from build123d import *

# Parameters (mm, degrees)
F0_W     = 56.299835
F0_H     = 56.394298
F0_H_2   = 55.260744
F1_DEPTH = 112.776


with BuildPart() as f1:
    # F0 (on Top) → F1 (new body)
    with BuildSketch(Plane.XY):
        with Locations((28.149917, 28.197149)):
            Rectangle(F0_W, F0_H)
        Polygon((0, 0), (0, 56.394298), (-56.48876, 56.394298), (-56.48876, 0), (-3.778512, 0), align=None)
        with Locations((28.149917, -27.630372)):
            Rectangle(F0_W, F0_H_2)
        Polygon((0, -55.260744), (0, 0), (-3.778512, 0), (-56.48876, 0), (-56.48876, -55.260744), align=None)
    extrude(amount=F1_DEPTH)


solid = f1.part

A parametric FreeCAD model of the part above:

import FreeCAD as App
import Part
import Sketcher
Q = App.Units.Quantity

doc = App.newDocument("Part")
body = doc.addObject("PartDesign::Body", "Body")

sketch1 = body.newObject("Sketcher::SketchObject", "Sketch")
sketch1.AttachmentSupport = (doc.getObject("XY_Plane"), [""])
sketch1.MapMode = "FlatFace"
sketch1.addGeometry(Part.LineSegment(App.Vector(56, 56, 0), App.Vector(-56, 56, 0)), False)
sketch1.addGeometry(Part.LineSegment(App.Vector(-56, 56, 0), App.Vector(-56, -55, 0)), False)
sketch1.addGeometry(Part.LineSegment(App.Vector(-56, -55, 0), App.Vector(56, -55, 0)), False)
sketch1.addGeometry(Part.LineSegment(App.Vector(56, -55, 0), App.Vector(56, 56, 0)), False)
sketch1.addConstraint(Sketcher.Constraint("Coincident", 0, 2, 1, 1))
sketch1.addConstraint(Sketcher.Constraint("Coincident", 1, 2, 2, 1))
sketch1.addConstraint(Sketcher.Constraint("Coincident", 2, 2, 3, 1))
sketch1.addConstraint(Sketcher.Constraint("Coincident", 3, 2, 0, 1))
sketch1.addConstraint(Sketcher.Constraint("Horizontal", 0))
sketch1.addConstraint(Sketcher.Constraint("Vertical", 1))
sketch1.addConstraint(Sketcher.Constraint("Horizontal", 2))
sketch1.addConstraint(Sketcher.Constraint("Vertical", 3))
sketch1.addConstraint(Sketcher.Constraint("DistanceX", 0, 2, 0, 1, 112.788595))
sketch1.addConstraint(Sketcher.Constraint("DistanceY", 1, 2, 1, 1, 111.655042))
sketch1.addConstraint(Sketcher.Constraint("DistanceX", 0, 2, -1, 1, 56.48876))
sketch1.addConstraint(Sketcher.Constraint("DistanceY", -1, 1, 0, 2, 56.394298))
pad1 = body.newObject("PartDesign::Pad", "Pad")
pad1.Profile = sketch1
pad1.Length = Q("4.44 in")

doc.recompute()
